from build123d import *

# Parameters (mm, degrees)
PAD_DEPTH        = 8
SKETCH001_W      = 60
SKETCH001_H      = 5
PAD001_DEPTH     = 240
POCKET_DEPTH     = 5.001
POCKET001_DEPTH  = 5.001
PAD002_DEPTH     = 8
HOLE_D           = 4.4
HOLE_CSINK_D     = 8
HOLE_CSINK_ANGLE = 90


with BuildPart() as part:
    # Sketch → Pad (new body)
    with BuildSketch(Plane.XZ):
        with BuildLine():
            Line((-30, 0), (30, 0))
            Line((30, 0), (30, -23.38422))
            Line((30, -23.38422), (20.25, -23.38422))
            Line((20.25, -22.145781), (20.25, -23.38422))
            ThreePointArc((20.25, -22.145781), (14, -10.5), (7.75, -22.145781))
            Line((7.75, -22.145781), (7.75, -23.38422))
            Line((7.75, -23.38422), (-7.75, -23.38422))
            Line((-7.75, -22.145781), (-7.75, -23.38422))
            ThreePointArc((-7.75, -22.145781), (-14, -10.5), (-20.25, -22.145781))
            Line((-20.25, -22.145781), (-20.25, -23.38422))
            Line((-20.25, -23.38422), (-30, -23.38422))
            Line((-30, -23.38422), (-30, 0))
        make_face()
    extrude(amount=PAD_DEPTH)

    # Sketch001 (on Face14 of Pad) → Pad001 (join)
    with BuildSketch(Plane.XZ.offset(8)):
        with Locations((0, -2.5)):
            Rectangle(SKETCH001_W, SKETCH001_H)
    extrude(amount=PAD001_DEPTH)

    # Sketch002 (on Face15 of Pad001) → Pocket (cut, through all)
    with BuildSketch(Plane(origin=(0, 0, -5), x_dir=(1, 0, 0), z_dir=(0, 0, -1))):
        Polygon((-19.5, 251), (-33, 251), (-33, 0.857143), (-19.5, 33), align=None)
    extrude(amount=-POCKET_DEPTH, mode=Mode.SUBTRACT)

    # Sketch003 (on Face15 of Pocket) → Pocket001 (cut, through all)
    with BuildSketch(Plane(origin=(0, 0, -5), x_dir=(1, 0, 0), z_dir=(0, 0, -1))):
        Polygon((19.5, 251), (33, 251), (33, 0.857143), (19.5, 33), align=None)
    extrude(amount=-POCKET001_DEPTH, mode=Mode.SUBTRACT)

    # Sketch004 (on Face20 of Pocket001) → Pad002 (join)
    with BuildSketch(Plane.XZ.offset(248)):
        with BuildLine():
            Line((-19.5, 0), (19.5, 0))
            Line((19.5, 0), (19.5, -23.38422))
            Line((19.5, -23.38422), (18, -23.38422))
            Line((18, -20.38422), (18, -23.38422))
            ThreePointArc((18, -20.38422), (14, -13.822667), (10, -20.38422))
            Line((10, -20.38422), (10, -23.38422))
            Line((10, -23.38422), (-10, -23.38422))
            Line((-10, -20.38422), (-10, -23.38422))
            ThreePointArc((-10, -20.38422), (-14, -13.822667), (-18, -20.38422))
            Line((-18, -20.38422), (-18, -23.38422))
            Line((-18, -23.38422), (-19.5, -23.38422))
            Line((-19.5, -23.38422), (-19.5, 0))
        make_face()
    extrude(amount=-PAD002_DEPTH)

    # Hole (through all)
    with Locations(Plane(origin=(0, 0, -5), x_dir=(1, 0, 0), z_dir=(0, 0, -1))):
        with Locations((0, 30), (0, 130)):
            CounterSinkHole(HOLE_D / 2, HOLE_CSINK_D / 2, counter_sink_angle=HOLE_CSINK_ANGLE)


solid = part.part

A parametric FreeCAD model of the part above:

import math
import FreeCAD as App
import Part
import Sketcher

V = App.Vector
Q = App.Units.Quantity


def add_polygon(sketch, points):
    """Adds a closed chain of lines whose ends are joined by coincident constraints."""
    first, n = sketch.GeometryCount, len(points)
    for a, b in zip(points, points[1:] + points[:1]):
        sketch.addGeometry(Part.LineSegment(App.Vector(*a, 0), App.Vector(*b, 0)), False)
    for i in range(n):
        sketch.addConstraint(Sketcher.Constraint("Coincident", first + i, 2, first + (i + 1) % n, 1))

doc = App.newDocument("Part")
body = doc.addObject("PartDesign::Body", "Body")

sketch1 = body.newObject("Sketcher::SketchObject", "Sketch")
sketch1.AttachmentSupport = (doc.getObject("XZ_Plane"), [""])
sketch1.MapMode = "FlatFace"
sketch1.addGeometry(Part.LineSegment(V(30, 0, 0), V(-30, 0, 0)), False)
sketch1.addGeometry(Part.LineSegment(V(-30, 0, 0), V(-30, -23.4, 0)), False)
sketch1.addGeometry(Part.LineSegment(V(-30, -23.4, 0), V(-20.2, -23.4, 0)), False)
sketch1.addGeometry(Part.LineSegment(V(-20.2, -23.4, 0), V(-20.2, -22.1, 0)), False)
sketch1.addGeometry(Part.ArcOfCircle(Part.Circle(V(-14, -18, 0), V(0, 0, 1), 7.5), math.radians(-34), math.radians(214)), False)
sketch1.addGeometry(Part.LineSegment(V(-7.8, -22.1, 0), V(-7.8, -23.4, 0)), False)
sketch1.addGeometry(Part.LineSegment(V(-7.8, -23.4, 0), V(7.8, -23.4, 0)), False)
sketch1.addGeometry(Part.LineSegment(V(7.8, -23.4, 0), V(7.8, -22.1, 0)), False)
sketch1.addGeometry(Part.ArcOfCircle(Part.Circle(V(14, -18, 0), V(0, 0, 1), 7.5), math.radians(-34), math.radians(214)), False)
sketch1.addGeometry(Part.LineSegment(V(20.2, -22.1, 0), V(20.2, -23.4, 0)), False)
sketch1.addGeometry(Part.LineSegment(V(20.2, -23.4, 0), V(30, -23.4, 0)), False)
sketch1.addGeometry(Part.LineSegment(V(30, -23.4, 0), V(30, 0, 0)), False)
sketch1.addConstraint(Sketcher.Constraint("Coincident", 0, 2, 1, 1))
sketch1.addConstraint(Sketcher.Constraint("Coincident", 1, 2, 2, 1))
sketch1.addConstraint(Sketcher.Constraint("Coincident", 2, 2, 3, 1))
sketch1.addConstraint(Sketcher.Constraint("Coincident", 3, 2, 4, 2))
sketch1.addConstraint(Sketcher.Constraint("Coincident", 4, 1, 5, 1))
sketch1.addConstraint(Sketcher.Constraint("Coincident", 5, 2, 6, 1))
sketch1.addConstraint(Sketcher.Constraint("Coincident", 6, 2, 7, 1))
sketch1.addConstraint(Sketcher.Constraint("Coincident", 7, 2, 8, 2))
sketch1.addConstraint(Sketcher.Constraint("Coincident", 8, 1, 9, 1))
sketch1.addConstraint(Sketcher.Constraint("Coincident", 9, 2, 10, 1))
sketch1.addConstraint(Sketcher.Constraint("Coincident", 10, 2, 11, 1))
sketch1.addConstraint(Sketcher.Constraint("Coincident", 11, 2, 0, 1))
sketch1.addConstraint(Sketcher.Constraint("Horizontal", 0))
sketch1.addConstraint(Sketcher.Constraint("Vertical", 1))
sketch1.addConstraint(Sketcher.Constraint("Horizontal", 2))
sketch1.addConstraint(Sketcher.Constraint("Vertical", 3))
sketch1.addConstraint(Sketcher.Constraint("Vertical", 5))
sketch1.addConstraint(Sketcher.Constraint("Horizontal", 6))
sketch1.addConstraint(Sketcher.Constraint("Vertical", 7))
sketch1.addConstraint(Sketcher.Constraint("Vertical", 9))
sketch1.addConstraint(Sketcher.Constraint("Horizontal", 10))
sketch1.addConstraint(Sketcher.Constraint("Vertical", 11))
sketch1.addConstraint(Sketcher.Constraint("Equal", 4, 8))
sketch1.addConstraint(Sketcher.Constraint("Symmetric", 0, 2, 11, 2, -1, 1))
sketch1.addConstraint(Sketcher.Constraint("Symmetric", 4, 3, 8, 3, -2))
sketch1.addConstraint(Sketcher.Constraint("Symmetric", 2, 2, 9, 2, -2))
sketch1.addConstraint(Sketcher.Constraint("Horizontal", 3, 2, 4, 1))
sketch1.addConstraint(Sketcher.Constraint("Horizontal", 2, 2, 5, 2))
sketch1.addConstraint(Sketcher.Constraint("Horizontal", 4, 1, 7, 2))
sketch1.addConstraint(Sketcher.Constraint("Radius", 4, Q("7.5 mm")))
sketch1.addConstraint(Sketcher.Constraint("DistanceX", 0, 2, 0, 1, Q("60 mm")))
sketch1.addConstraint(Sketcher.Constraint("DistanceX", 6, 1, 6, 2, Q("15.5 mm")))
sketch1.addConstraint(Sketcher.Constraint("DistanceX", 4, 3, -1, 1, Q("14 mm")))
sketch1.addConstraint(Sketcher.Constraint("DistanceY", 4, 3, -1, 1, Q("18 mm")))
sketch1.addConstraint(Sketcher.Constraint("DistanceY", 1, 2, 1, 1, Q("23.38422 mm")))
pad1 = body.newObject("PartDesign::Pad", "Pad")
pad1.Profile = sketch1
pad1.Length = 8

sketch2 = body.newObject("Sketcher::SketchObject", "Sketch001")
sketch2.AttachmentSupport = (doc.getObject("XZ_Plane"), [""])
sketch2.MapMode = "FlatFace"
sketch2.AttachmentOffset = App.Placement(V(0, 0, 8), App.Rotation())
add_polygon(sketch2, [(-30, 0), (-30, -5), (30, -5), (30, 0)])
sketch2.addConstraint(Sketcher.Constraint("Vertical", 0))
sketch2.addConstraint(Sketcher.Constraint("Horizontal", 1))
sketch2.addConstraint(Sketcher.Constraint("Vertical", 2))
sketch2.addConstraint(Sketcher.Constraint("Horizontal", 3))
sketch2.addConstraint(Sketcher.Constraint("Symmetric", 2, 2, 3, 2, -1, 1))
sketch2.addConstraint(Sketcher.Constraint("DistanceX", 1, 1, 1, 2, Q("60 mm")))
sketch2.addConstraint(Sketcher.Constraint("DistanceY", 0, 2, 0, 1, Q("5 mm")))
pad2 = body.newObject("PartDesign::Pad", "Pad001")
pad2.Profile = sketch2
pad2.Length = 240

sketch3 = body.newObject("Sketcher::SketchObject", "Sketch002")
sketch3.AttachmentSupport = (doc.getObject("XY_Plane"), [""])
sketch3.MapMode = "FlatFace"
sketch3.AttachmentOffset = App.Placement(V(0, 0, -5), App.Rotation())
add_polygon(sketch3, [(-20, -251), (-33, -251), (-33, -1), (-20, -33)])
sketch3.addConstraint(Sketcher.Constraint("Horizontal", 0))
sketch3.addConstraint(Sketcher.Constraint("Vertical", 1))
sketch3.addConstraint(Sketcher.Constraint("Vertical", 3))
sketch3.addConstraint(Sketcher.Constraint("DistanceY", 3, 2, 3, 1, Q("218 mm")))
sketch3.addConstraint(Sketcher.Constraint("DistanceX", 0, 2, 0, 1, Q("13.5 mm")))
sketch3.addConstraint(Sketcher.Constraint("DistanceX", 0, 2, -1, 1, Q("33 mm")))
sketch3.addConstraint(Sketcher.Constraint("DistanceY", 0, 2, -1, 1, Q("251 mm")))
sketch3.addConstraint(Sketcher.Constraint("DistanceY", 1, 1, 1, 2, Q("250.142857 mm")))
pocket1 = body.newObject("PartDesign::Pocket", "Pocket")
pocket1.Profile = sketch3
pocket1.Type = "ThroughAll"
pocket1.Reversed = True

sketch4 = body.newObject("Sketcher::SketchObject", "Sketch003")
sketch4.AttachmentSupport = (doc.getObject("XY_Plane"), [""])
sketch4.MapMode = "FlatFace"
sketch4.AttachmentOffset = App.Placement(V(0, 0, -5), App.Rotation())
add_polygon(sketch4, [(33, -251), (20, -251), (20, -33), (33, -1)])
sketch4.addConstraint(Sketcher.Constraint("Horizontal", 0))
sketch4.addConstraint(Sketcher.Constraint("Vertical", 1))
sketch4.addConstraint(Sketcher.Constraint("Vertical", 3))
sketch4.addConstraint(Sketcher.Constraint("DistanceY", 1, 1, 1, 2, Q("218 mm")))
sketch4.addConstraint(Sketcher.Constraint("DistanceX", 0, 2, 0, 1, Q("13.5 mm")))
sketch4.addConstraint(Sketcher.Constraint("DistanceY", 0, 2, -1, 1, Q("251 mm")))
sketch4.addConstraint(Sketcher.Constraint("DistanceX", -1, 1, 2, 2, Q("33 mm")))
sketch4.addConstraint(Sketcher.Constraint("DistanceY", 3, 2, 3, 1, Q("250.142857 mm")))
pocket2 = body.newObject("PartDesign::Pocket", "Pocket001")
pocket2.Profile = sketch4
pocket2.Type = "ThroughAll"
pocket2.Reversed = True

sketch5 = body.newObject("Sketcher::SketchObject", "Sketch004")
sketch5.AttachmentSupport = (doc.getObject("XZ_Plane"), [""])
sketch5.MapMode = "FlatFace"
sketch5.AttachmentOffset = App.Placement(V(0, 0, 248), App.Rotation())
sketch5.addGeometry(Part.LineSegment(V(19.5, 0, 0), V(-19.5, 0, 0)), False)
sketch5.addGeometry(Part.LineSegment(V(-19.5, 0, 0), V(-19.5, -23.4, 0)), False)
sketch5.addGeometry(Part.LineSegment(V(-19.5, -23.4, 0), V(-18, -23.4, 0)), False)
sketch5.addGeometry(Part.LineSegment(V(-18, -23.4, 0), V(-18, -20.4, 0)), False)
sketch5.addGeometry(Part.ArcOfCircle(Part.Circle(V(-14, -18.3, 0), V(0, 0, 1), 4.5), math.radians(-27), math.radians(207)), False)
sketch5.addGeometry(Part.LineSegment(V(-10, -20.4, 0), V(-10, -23.4, 0)), False)
sketch5.addGeometry(Part.LineSegment(V(-10, -23.4, 0), V(10, -23.4, 0)), False)
sketch5.addGeometry(Part.LineSegment(V(10, -23.4, 0), V(10, -20.4, 0)), False)
sketch5.addGeometry(Part.ArcOfCircle(Part.Circle(V(14, -18.3, 0), V(0, 0, 1), 4.5), math.radians(-27), math.radians(207)), False)
sketch5.addGeometry(Part.LineSegment(V(18, -20.4, 0), V(18, -23.4, 0)), False)
sketch5.addGeometry(Part.LineSegment(V(18, -23.4, 0), V(19.5, -23.4, 0)), False)
sketch5.addGeometry(Part.LineSegment(V(19.5, -23.4, 0), V(19.5, 0, 0)), False)
sketch5.addConstraint(Sketcher.Constraint("Coincident", 0, 2, 1, 1))
sketch5.addConstraint(Sketcher.Constraint("Coincident", 1, 2, 2, 1))
sketch5.addConstraint(Sketcher.Constraint("Coincident", 2, 2, 3, 1))
sketch5.addConstraint(Sketcher.Constraint("Coincident", 3, 2, 4, 2))
sketch5.addConstraint(Sketcher.Constraint("Coincident", 4, 1, 5, 1))
sketch5.addConstraint(Sketcher.Constraint("Coincident", 5, 2, 6, 1))
sketch5.addConstraint(Sketcher.Constraint("Coincident", 6, 2, 7, 1))
sketch5.addConstraint(Sketcher.Constraint("Coincident", 7, 2, 8, 2))
sketch5.addConstraint(Sketcher.Constraint("Coincident", 8, 1, 9, 1))
sketch5.addConstraint(Sketcher.Constraint("Coincident", 9, 2, 10, 1))
sketch5.addConstraint(Sketcher.Constraint("Coincident", 10, 2, 11, 1))
sketch5.addConstraint(Sketcher.Constraint("Coincident", 11, 2, 0, 1))
sketch5.addConstraint(Sketcher.Constraint("Horizontal", 0))
sketch5.addConstraint(Sketcher.Constraint("Vertical", 1))
sketch5.addConstraint(Sketcher.Constraint("Horizontal", 2))
sketch5.addConstraint(Sketcher.Constraint("Vertical", 3))
sketch5.addConstraint(Sketcher.Constraint("Vertical", 5))
sketch5.addConstraint(Sketcher.Constraint("Horizontal", 6))
sketch5.addConstraint(Sketcher.Constraint("Vertical", 7))
sketch5.addConstraint(Sketcher.Constraint("Vertical", 9))
sketch5.addConstraint(Sketcher.Constraint("Horizontal", 10))
sketch5.addConstraint(Sketcher.Constraint("Vertical", 11))
sketch5.addConstraint(Sketcher.Constraint("Equal", 4, 8))
sketch5.addConstraint(Sketcher.Constraint("Symmetric", 0, 2, 11, 2, -1, 1))
sketch5.addConstraint(Sketcher.Constraint("Symmetric", 4, 3, 8, 3, -2))
sketch5.addConstraint(Sketcher.Constraint("Symmetric", 2, 2, 9, 2, -2))
sketch5.addConstraint(Sketcher.Constraint("Horizontal", 3, 2, 4, 1))
sketch5.addConstraint(Sketcher.Constraint("Horizontal", 2, 2, 5, 2))
sketch5.addConstraint(Sketcher.Constraint("Horizontal", 4, 1, 7, 2))
sketch5.addConstraint(Sketcher.Constraint("Radius", 4, Q("4.5 mm")))
sketch5.addConstraint(Sketcher.Constraint("DistanceX", 0, 2, 0, 1, Q("39 mm")))
sketch5.addConstraint(Sketcher.Constraint("DistanceX", 6, 1, 6, 2, Q("20 mm")))
sketch5.addConstraint(Sketcher.Constraint("DistanceY", 3, 1, 3, 2, Q("3 mm")))
sketch5.addConstraint(Sketcher.Constraint("DistanceX", 2, 1, 2, 2, Q("1.5 mm")))
sketch5.addConstraint(Sketcher.Constraint("DistanceY", 1, 2, 1, 1, Q("23.38422 mm")))
pad3 = body.newObject("PartDesign::Pad", "Pad002")
pad3.Profile = sketch5
pad3.Length = 8
pad3.Reversed = True

sketch6 = body.newObject("Sketcher::SketchObject", "Sketch005")
sketch6.AttachmentSupport = (doc.getObject("XY_Plane"), [""])
sketch6.MapMode = "FlatFace"
sketch6.AttachmentOffset = App.Placement(V(0, 0, -5), App.Rotation())
sketch6.addGeometry(Part.Circle(V(0, -30, 0), V(0, 0, 1), 2.2), False)
sketch6.addGeometry(Part.Circle(V(0, -130, 0), V(0, 0, 1), 2.2), False)
sketch6.addConstraint(Sketcher.Constraint("Equal", 0, 1))
sketch6.addConstraint(Sketcher.Constraint("PointOnObject", 0, 3, -2))
sketch6.addConstraint(Sketcher.Constraint("PointOnObject", 1, 3, -2))
sketch6.addConstraint(Sketcher.Constraint("Diameter", 0, Q("4.4 mm")))
sketch6.addConstraint(Sketcher.Constraint("DistanceY", 0, 3, -1, 1, Q("30 mm")))
sketch6.addConstraint(Sketcher.Constraint("DistanceY", 1, 3, -1, 1, Q("130 mm")))
doc.recompute()
hole = body.newObject("PartDesign::Hole", "Hole")
hole.Profile = sketch6
hole.ThreadType = "None"
hole.Diameter = 4.4
hole.DepthType = "ThroughAll"
hole.HoleCutType = "Countersink"
hole.HoleCutDiameter = 8
hole.HoleCutCountersinkAngle = 90
hole.Reversed = True

doc.recompute()
